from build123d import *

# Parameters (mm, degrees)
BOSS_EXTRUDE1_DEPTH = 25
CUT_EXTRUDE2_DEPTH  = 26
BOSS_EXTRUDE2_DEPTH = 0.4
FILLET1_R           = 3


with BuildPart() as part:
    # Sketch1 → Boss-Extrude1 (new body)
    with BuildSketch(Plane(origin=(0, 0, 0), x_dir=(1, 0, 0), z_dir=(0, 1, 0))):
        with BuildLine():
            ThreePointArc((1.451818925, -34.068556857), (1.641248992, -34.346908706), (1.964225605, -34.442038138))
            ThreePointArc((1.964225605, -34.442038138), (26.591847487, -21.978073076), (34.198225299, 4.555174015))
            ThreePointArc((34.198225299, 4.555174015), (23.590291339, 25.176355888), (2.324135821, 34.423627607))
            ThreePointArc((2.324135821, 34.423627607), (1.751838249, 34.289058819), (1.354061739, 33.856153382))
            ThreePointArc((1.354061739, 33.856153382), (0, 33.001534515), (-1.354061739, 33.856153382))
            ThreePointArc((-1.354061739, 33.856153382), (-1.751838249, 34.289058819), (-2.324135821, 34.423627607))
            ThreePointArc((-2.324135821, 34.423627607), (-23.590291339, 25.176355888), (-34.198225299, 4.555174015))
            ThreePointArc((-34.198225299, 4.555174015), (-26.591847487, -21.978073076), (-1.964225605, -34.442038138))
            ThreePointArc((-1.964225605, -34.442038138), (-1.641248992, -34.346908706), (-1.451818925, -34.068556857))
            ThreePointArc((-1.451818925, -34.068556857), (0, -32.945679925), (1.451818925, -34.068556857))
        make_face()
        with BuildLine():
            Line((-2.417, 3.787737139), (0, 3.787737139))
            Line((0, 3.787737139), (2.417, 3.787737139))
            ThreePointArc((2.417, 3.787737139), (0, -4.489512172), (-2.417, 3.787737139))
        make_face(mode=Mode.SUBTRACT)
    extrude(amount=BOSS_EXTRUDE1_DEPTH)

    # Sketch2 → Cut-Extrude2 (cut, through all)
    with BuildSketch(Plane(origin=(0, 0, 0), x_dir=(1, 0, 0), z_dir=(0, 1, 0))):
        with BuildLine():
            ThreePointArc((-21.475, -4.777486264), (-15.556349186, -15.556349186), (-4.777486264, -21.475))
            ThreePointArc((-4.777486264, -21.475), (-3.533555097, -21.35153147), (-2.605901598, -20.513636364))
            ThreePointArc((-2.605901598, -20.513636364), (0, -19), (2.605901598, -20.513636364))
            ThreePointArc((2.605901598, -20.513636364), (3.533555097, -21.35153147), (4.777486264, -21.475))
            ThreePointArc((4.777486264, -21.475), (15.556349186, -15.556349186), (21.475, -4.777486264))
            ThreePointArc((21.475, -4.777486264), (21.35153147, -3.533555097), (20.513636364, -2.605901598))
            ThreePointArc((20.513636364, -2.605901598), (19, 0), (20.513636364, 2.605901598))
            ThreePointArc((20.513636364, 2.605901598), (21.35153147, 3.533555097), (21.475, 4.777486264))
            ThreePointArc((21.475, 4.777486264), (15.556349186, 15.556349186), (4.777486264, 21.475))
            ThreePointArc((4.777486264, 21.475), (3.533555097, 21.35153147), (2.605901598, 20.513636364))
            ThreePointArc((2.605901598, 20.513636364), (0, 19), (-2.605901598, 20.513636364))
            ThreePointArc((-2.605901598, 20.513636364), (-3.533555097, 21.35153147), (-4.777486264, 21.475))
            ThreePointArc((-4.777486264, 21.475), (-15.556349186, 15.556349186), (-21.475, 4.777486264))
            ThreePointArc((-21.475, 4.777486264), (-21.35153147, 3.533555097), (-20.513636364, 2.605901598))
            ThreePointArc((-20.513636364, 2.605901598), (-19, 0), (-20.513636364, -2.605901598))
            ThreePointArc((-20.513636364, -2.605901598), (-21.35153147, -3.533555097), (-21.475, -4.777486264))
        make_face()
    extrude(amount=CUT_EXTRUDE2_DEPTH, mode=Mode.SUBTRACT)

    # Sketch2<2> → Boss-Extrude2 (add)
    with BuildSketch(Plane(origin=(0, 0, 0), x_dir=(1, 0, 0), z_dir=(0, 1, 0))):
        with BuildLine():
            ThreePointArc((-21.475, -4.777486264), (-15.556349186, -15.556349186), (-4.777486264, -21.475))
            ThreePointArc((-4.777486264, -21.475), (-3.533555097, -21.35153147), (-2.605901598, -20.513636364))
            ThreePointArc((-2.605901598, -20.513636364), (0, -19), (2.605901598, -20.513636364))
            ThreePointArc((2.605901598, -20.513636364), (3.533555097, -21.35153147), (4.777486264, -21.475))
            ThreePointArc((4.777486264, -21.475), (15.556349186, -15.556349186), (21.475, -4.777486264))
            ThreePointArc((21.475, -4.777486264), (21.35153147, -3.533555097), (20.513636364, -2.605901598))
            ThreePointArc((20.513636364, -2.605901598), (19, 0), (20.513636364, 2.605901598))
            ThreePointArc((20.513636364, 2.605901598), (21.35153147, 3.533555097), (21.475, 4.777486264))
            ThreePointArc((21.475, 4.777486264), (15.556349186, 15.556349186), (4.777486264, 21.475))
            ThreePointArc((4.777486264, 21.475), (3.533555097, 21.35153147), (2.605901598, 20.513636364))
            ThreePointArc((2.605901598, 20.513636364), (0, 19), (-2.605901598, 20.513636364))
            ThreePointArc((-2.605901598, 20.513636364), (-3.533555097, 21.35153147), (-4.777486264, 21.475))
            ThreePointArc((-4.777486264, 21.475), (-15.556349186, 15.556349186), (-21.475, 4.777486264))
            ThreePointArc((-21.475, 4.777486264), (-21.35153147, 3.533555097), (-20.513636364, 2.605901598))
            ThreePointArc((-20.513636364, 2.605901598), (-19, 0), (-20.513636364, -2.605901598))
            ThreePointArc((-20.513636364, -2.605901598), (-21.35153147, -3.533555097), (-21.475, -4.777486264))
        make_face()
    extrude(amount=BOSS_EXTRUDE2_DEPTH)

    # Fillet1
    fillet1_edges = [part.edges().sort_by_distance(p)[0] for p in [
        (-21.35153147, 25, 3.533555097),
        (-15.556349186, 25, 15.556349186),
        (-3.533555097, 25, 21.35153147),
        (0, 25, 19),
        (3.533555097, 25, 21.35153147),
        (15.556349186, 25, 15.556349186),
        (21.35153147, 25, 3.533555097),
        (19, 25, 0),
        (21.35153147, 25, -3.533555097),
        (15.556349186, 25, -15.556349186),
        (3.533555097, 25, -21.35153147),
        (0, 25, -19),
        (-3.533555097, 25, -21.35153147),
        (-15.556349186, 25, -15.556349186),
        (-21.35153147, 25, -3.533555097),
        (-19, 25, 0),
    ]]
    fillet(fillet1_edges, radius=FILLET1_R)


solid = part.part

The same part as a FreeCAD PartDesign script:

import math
import FreeCAD as App
import Part
import Sketcher
from FreeCAD import Vector


def edges_at(feature, points):
    """Names of the edges that pass closest to the given points."""
    edges = feature.Shape.Edges
    near = lambda p: min(range(len(edges)), key=lambda i: edges[i].distToShape(Part.Vertex(*p))[0])
    return sorted({f"Edge{near(p) + 1}" for p in points})

doc = App.newDocument("Part")
body = doc.addObject("PartDesign::Body", "Body")

sketch1 = body.newObject("Sketcher::SketchObject", "Sketch")
sketch1.AttachmentSupport = (doc.getObject("XZ_Plane"), [""])
sketch1.MapMode = "FlatFace"
sketch1.addGeometry(Part.ArcOfCircle(Part.Circle(Vector(1.9, 33.9, 0), Vector(0, 0, 1), 0.5), math.radians(87), math.radians(165)), False)
sketch1.addGeometry(Part.ArcOfCircle(Part.Circle(Vector(0, 0, 0), Vector(0, 0, 1), 34.5), math.radians(-8), math.radians(87)), False)
sketch1.addGeometry(Part.ArcOfCircle(Part.Circle(Vector(0, 0, 0), Vector(0, 0, 1), 34.5), math.radians(-86), math.radians(-8)), False)
sketch1.addGeometry(Part.ArcOfCircle(Part.Circle(Vector(2.3, -33.4, 0), Vector(0, 0, 1), 1), math.radians(-155), math.radians(-86)), False)
sketch1.addGeometry(Part.ArcOfCircle(Part.Circle(Vector(0, -34.5, 0), Vector(0, 0, 1), 1.5), math.radians(25), math.radians(155)), False)
sketch1.addGeometry(Part.ArcOfCircle(Part.Circle(Vector(-2.3, -33.4, 0), Vector(0, 0, 1), 1), math.radians(-94), math.radians(-25)), False)
sketch1.addGeometry(Part.ArcOfCircle(Part.Circle(Vector(0, 0, 0), Vector(0, 0, 1), 34.5), math.radians(-172), math.radians(-94)), False)
sketch1.addGeometry(Part.ArcOfCircle(Part.Circle(Vector(0, 0, 0), Vector(0, 0, 1), 34.5), math.radians(93), math.radians(188)), False)
sketch1.addGeometry(Part.ArcOfCircle(Part.Circle(Vector(-1.9, 33.9, 0), Vector(0, 0, 1), 0.5), math.radians(15), math.radians(93)), False)
sketch1.addGeometry(Part.ArcOfCircle(Part.Circle(Vector(0, 34.4, 0), Vector(0, 0, 1), 1.5), math.radians(-165), math.radians(-15)), False)
sketch1.addGeometry(Part.ArcOfCircle(Part.Circle(Vector(0, 0, 0), Vector(0, 0, 1), 4.5), math.radians(-57), math.radians(237)), False)
sketch1.addGeometry(Part.LineSegment(Vector(-2.4, -3.8, 0), Vector(2.4, -3.8, 0)), False)
sketch1.addConstraint(Sketcher.Constraint("Tangent", 0, 1, 1, 2))
sketch1.addConstraint(Sketcher.Constraint("Tangent", 1, 1, 2, 2))
sketch1.addConstraint(Sketcher.Constraint("Tangent", 2, 1, 3, 2))
sketch1.addConstraint(Sketcher.Constraint("Tangent", 3, 1, 4, 1))
sketch1.addConstraint(Sketcher.Constraint("Tangent", 4, 2, 5, 2))
sketch1.addConstraint(Sketcher.Constraint("Tangent", 5, 1, 6, 2))
sketch1.addConstraint(Sketcher.Constraint("Tangent", 6, 1, 7, 2))
sketch1.addConstraint(Sketcher.Constraint("Tangent", 7, 1, 8, 2))
sketch1.addConstraint(Sketcher.Constraint("Tangent", 8, 1, 9, 1))
sketch1.addConstraint(Sketcher.Constraint("Tangent", 9, 2, 0, 2))
sketch1.addConstraint(Sketcher.Constraint("Coincident", 10, 1, 11, 2))
sketch1.addConstraint(Sketcher.Constraint("Coincident", 11, 1, 10, 2))
sketch1.addConstraint(Sketcher.Constraint("Horizontal", 11))
sketch1.addConstraint(Sketcher.Constraint("Coincident", 6, 3, 1, 3))
sketch1.addConstraint(Sketcher.Constraint("Coincident", 10, 3, 1, 3))
sketch1.addConstraint(Sketcher.Constraint("Equal", 1, 2))
sketch1.addConstraint(Sketcher.Constraint("Equal", 3, 5))
sketch1.addConstraint(Sketcher.Constraint("Equal", 2, 6))
sketch1.addConstraint(Sketcher.Constraint("Equal", 6, 7))
sketch1.addConstraint(Sketcher.Constraint("Equal", 0, 8))
sketch1.addConstraint(Sketcher.Constraint("Equal", 4, 9))
sketch1.addConstraint(Sketcher.Constraint("Symmetric", 3, 3, 5, 3, -2))
sketch1.addConstraint(Sketcher.Constraint("PointOnObject", 9, 3, -2))
sketch1.addConstraint(Sketcher.Constraint("Horizontal", 1, 1, 6, 1))
sketch1.addConstraint(Sketcher.Constraint("Radius", 3, 1.0))
sketch1.addConstraint(Sketcher.Constraint("Radius", 0, 0.5))
sketch1.addConstraint(Sketcher.Constraint("Radius", 1, 34.5))
sketch1.addConstraint(Sketcher.Constraint("Radius", 4, 1.5))
sketch1.addConstraint(Sketcher.Constraint("DistanceX", 11, 1, 11, 2, 4.834))
sketch1.addConstraint(Sketcher.Constraint("DistanceY", 1, 3, -1, 1, 0.002001))
sketch1.addConstraint(Sketcher.Constraint("Radius", 10, 4.491513))
sketch1.addConstraint(Sketcher.Constraint("DistanceY", 3, 3, -1, 1, 33.425899))
sketch1.addConstraint(Sketcher.Constraint("DistanceX", -1, 1, 0, 3, 1.935759))
sketch1.addConstraint(Sketcher.Constraint("DistanceX", -1, 1, 1, 1, 34.198225))
pad1 = body.newObject("PartDesign::Pad", "Pad")
pad1.Profile = sketch1
pad1.Length = 25
pad1.Reversed = True

sketch2 = body.newObject("Sketcher::SketchObject", "Sketch001")
sketch2.AttachmentSupport = (doc.getObject("XZ_Plane"), [""])
sketch2.MapMode = "FlatFace"
sketch2.addGeometry(Part.ArcOfCircle(Part.Circle(Vector(0, 0, 0), Vector(0, 0, 1), 22), math.radians(103), math.radians(167)), False)
sketch2.addGeometry(Part.ArcOfCircle(Part.Circle(Vector(-4.3, 19.5, 0), Vector(0, 0, 1), 2), math.radians(30), math.radians(103)), False)
sketch2.addGeometry(Part.ArcOfCircle(Part.Circle(Vector(0, 22, 0), Vector(0, 0, 1), 3), math.radians(-150), math.radians(-30)), False)
sketch2.addGeometry(Part.ArcOfCircle(Part.Circle(Vector(4.3, 19.5, 0), Vector(0, 0, 1), 2), math.radians(77), math.radians(150)), False)
sketch2.addGeometry(Part.ArcOfCircle(Part.Circle(Vector(0, 0, 0), Vector(0, 0, 1), 22), math.radians(13), math.radians(77)), False)
sketch2.addGeometry(Part.ArcOfCircle(Part.Circle(Vector(19.5, 4.3, 0), Vector(0, 0, 1), 2), math.radians(-60), math.radians(13)), False)
sketch2.addGeometry(Part.ArcOfCircle(Part.Circle(Vector(22, 0, 0), Vector(0, 0, 1), 3), math.radians(120), math.radians(240)), False)
sketch2.addGeometry(Part.ArcOfCircle(Part.Circle(Vector(19.5, -4.3, 0), Vector(0, 0, 1), 2), math.radians(-13), math.radians(60)), False)
sketch2.addGeometry(Part.ArcOfCircle(Part.Circle(Vector(0, 0, 0), Vector(0, 0, 1), 22), math.radians(-77), math.radians(-13)), False)
sketch2.addGeometry(Part.ArcOfCircle(Part.Circle(Vector(4.3, -19.5, 0), Vector(0, 0, 1), 2), math.radians(-150), math.radians(-77)), False)
sketch2.addGeometry(Part.ArcOfCircle(Part.Circle(Vector(0, -22, 0), Vector(0, 0, 1), 3), math.radians(30), math.radians(150)), False)
sketch2.addGeometry(Part.ArcOfCircle(Part.Circle(Vector(-4.3, -19.5, 0), Vector(0, 0, 1), 2), math.radians(-103), math.radians(-30)), False)
sketch2.addGeometry(Part.ArcOfCircle(Part.Circle(Vector(0, 0, 0), Vector(0, 0, 1), 22), math.radians(-167), math.radians(-103)), False)
sketch2.addGeometry(Part.ArcOfCircle(Part.Circle(Vector(-19.5, -4.3, 0), Vector(0, 0, 1), 2), math.radians(120), math.radians(193)), False)
sketch2.addGeometry(Part.ArcOfCircle(Part.Circle(Vector(-22, 0, 0), Vector(0, 0, 1), 3), math.radians(-60), math.radians(60)), False)
sketch2.addGeometry(Part.ArcOfCircle(Part.Circle(Vector(-19.5, 4.3, 0), Vector(0, 0, 1), 2), math.radians(167), math.radians(240)), False)
sketch2.addConstraint(Sketcher.Constraint("Tangent", 0, 1, 1, 2))
sketch2.addConstraint(Sketcher.Constraint("Tangent", 1, 1, 2, 1))
sketch2.addConstraint(Sketcher.Constraint("Tangent", 2, 2, 3, 2))
sketch2.addConstraint(Sketcher.Constraint("Tangent", 3, 1, 4, 2))
sketch2.addConstraint(Sketcher.Constraint("Tangent", 4, 1, 5, 2))
sketch2.addConstraint(Sketcher.Constraint("Tangent", 5, 1, 6, 1))
sketch2.addConstraint(Sketcher.Constraint("Tangent", 6, 2, 7, 2))
sketch2.addConstraint(Sketcher.Constraint("Tangent", 7, 1, 8, 2))
sketch2.addConstraint(Sketcher.Constraint("Tangent", 8, 1, 9, 2))
sketch2.addConstraint(Sketcher.Constraint("Tangent", 9, 1, 10, 1))
sketch2.addConstraint(Sketcher.Constraint("Tangent", 10, 2, 11, 2))
sketch2.addConstraint(Sketcher.Constraint("Tangent", 11, 1, 12, 2))
sketch2.addConstraint(Sketcher.Constraint("Tangent", 12, 1, 13, 2))
sketch2.addConstraint(Sketcher.Constraint("Tangent", 13, 1, 14, 1))
sketch2.addConstraint(Sketcher.Constraint("Tangent", 14, 2, 15, 2))
sketch2.addConstraint(Sketcher.Constraint("Tangent", 15, 1, 0, 2))
sketch2.addConstraint(Sketcher.Constraint("Coincident", 0, 3, -1, 1))
sketch2.addConstraint(Sketcher.Constraint("Coincident", 4, 3, -1, 1))
sketch2.addConstraint(Sketcher.Constraint("Coincident", 8, 3, -1, 1))
sketch2.addConstraint(Sketcher.Constraint("Coincident", 12, 3, -1, 1))
sketch2.addConstraint(Sketcher.Constraint("Equal", 1, 3))
sketch2.addConstraint(Sketcher.Constraint("Equal", 0, 4))
sketch2.addConstraint(Sketcher.Constraint("Equal", 3, 5))
sketch2.addConstraint(Sketcher.Constraint("Equal", 2, 6))
sketch2.addConstraint(Sketcher.Constraint("Equal", 5, 7))
sketch2.addConstraint(Sketcher.Constraint("Equal", 4, 8))
sketch2.addConstraint(Sketcher.Constraint("Equal", 7, 9))
sketch2.addConstraint(Sketcher.Constraint("Equal", 6, 10))
sketch2.addConstraint(Sketcher.Constraint("Equal", 9, 11))
sketch2.addConstraint(Sketcher.Constraint("Equal", 8, 12))
sketch2.addConstraint(Sketcher.Constraint("Equal", 11, 13))
sketch2.addConstraint(Sketcher.Constraint("Equal", 10, 14))
sketch2.addConstraint(Sketcher.Constraint("Equal", 13, 15))
sketch2.addConstraint(Sketcher.Constraint("Symmetric", 2, 3, 10, 3, -1, 1))
sketch2.addConstraint(Sketcher.Constraint("Symmetric", 6, 3, 14, 3, -1, 1))
sketch2.addConstraint(Sketcher.Constraint("PointOnObject", 2, 3, -2))
sketch2.addConstraint(Sketcher.Constraint("PointOnObject", 6, 3, -1))
sketch2.addConstraint(Sketcher.Constraint("Radius", 0, 22.0))
sketch2.addConstraint(Sketcher.Constraint("Radius", 1, 2.0))
sketch2.addConstraint(Sketcher.Constraint("Radius", 2, 3.0))
sketch2.addConstraint(Sketcher.Constraint("DistanceY", -1, 1, 2, 3, 22.0))
sketch2.addConstraint(Sketcher.Constraint("DistanceX", -1, 1, 6, 3, 22.0))
pocket1 = body.newObject("PartDesign::Pocket", "Pocket")
pocket1.Profile = sketch2
pocket1.Type = "ThroughAll"

sketch3 = body.newObject("Sketcher::SketchObject", "Sketch002")
sketch3.AttachmentSupport = (doc.getObject("XZ_Plane"), [""])
sketch3.MapMode = "FlatFace"
sketch3.addGeometry(Part.ArcOfCircle(Part.Circle(Vector(0, 0, 0), Vector(0, 0, 1), 22), math.radians(103), math.radians(167)), False)
sketch3.addGeometry(Part.ArcOfCircle(Part.Circle(Vector(-4.3, 19.5, 0), Vector(0, 0, 1), 2), math.radians(30), math.radians(103)), False)
sketch3.addGeometry(Part.ArcOfCircle(Part.Circle(Vector(0, 22, 0), Vector(0, 0, 1), 3), math.radians(-150), math.radians(-30)), False)
sketch3.addGeometry(Part.ArcOfCircle(Part.Circle(Vector(4.3, 19.5, 0), Vector(0, 0, 1), 2), math.radians(77), math.radians(150)), False)
sketch3.addGeometry(Part.ArcOfCircle(Part.Circle(Vector(0, 0, 0), Vector(0, 0, 1), 22), math.radians(13), math.radians(77)), False)
sketch3.addGeometry(Part.ArcOfCircle(Part.Circle(Vector(19.5, 4.3, 0), Vector(0, 0, 1), 2), math.radians(-60), math.radians(13)), False)
sketch3.addGeometry(Part.ArcOfCircle(Part.Circle(Vector(22, 0, 0), Vector(0, 0, 1), 3), math.radians(120), math.radians(240)), False)
sketch3.addGeometry(Part.ArcOfCircle(Part.Circle(Vector(19.5, -4.3, 0), Vector(0, 0, 1), 2), math.radians(-13), math.radians(60)), False)
sketch3.addGeometry(Part.ArcOfCircle(Part.Circle(Vector(0, 0, 0), Vector(0, 0, 1), 22), math.radians(-77), math.radians(-13)), False)
sketch3.addGeometry(Part.ArcOfCircle(Part.Circle(Vector(4.3, -19.5, 0), Vector(0, 0, 1), 2), math.radians(-150), math.radians(-77)), False)
sketch3.addGeometry(Part.ArcOfCircle(Part.Circle(Vector(0, -22, 0), Vector(0, 0, 1), 3), math.radians(30), math.radians(150)), False)
sketch3.addGeometry(Part.ArcOfCircle(Part.Circle(Vector(-4.3, -19.5, 0), Vector(0, 0, 1), 2), math.radians(-103), math.radians(-30)), False)
sketch3.addGeometry(Part.ArcOfCircle(Part.Circle(Vector(0, 0, 0), Vector(0, 0, 1), 22), math.radians(-167), math.radians(-103)), False)
sketch3.addGeometry(Part.ArcOfCircle(Part.Circle(Vector(-19.5, -4.3, 0), Vector(0, 0, 1), 2), math.radians(120), math.radians(193)), False)
sketch3.addGeometry(Part.ArcOfCircle(Part.Circle(Vector(-22, 0, 0), Vector(0, 0, 1), 3), math.radians(-60), math.radians(60)), False)
sketch3.addGeometry(Part.ArcOfCircle(Part.Circle(Vector(-19.5, 4.3, 0), Vector(0, 0, 1), 2), math.radians(167), math.radians(240)), False)
sketch3.addConstraint(Sketcher.Constraint("Tangent", 0, 1, 1, 2))
sketch3.addConstraint(Sketcher.Constraint("Tangent", 1, 1, 2, 1))
sketch3.addConstraint(Sketcher.Constraint("Tangent", 2, 2, 3, 2))
sketch3.addConstraint(Sketcher.Constraint("Tangent", 3, 1, 4, 2))
sketch3.addConstraint(Sketcher.Constraint("Tangent", 4, 1, 5, 2))
sketch3.addConstraint(Sketcher.Constraint("Tangent", 5, 1, 6, 1))
sketch3.addConstraint(Sketcher.Constraint("Tangent", 6, 2, 7, 2))
sketch3.addConstraint(Sketcher.Constraint("Tangent", 7, 1, 8, 2))
sketch3.addConstraint(Sketcher.Constraint("Tangent", 8, 1, 9, 2))
sketch3.addConstraint(Sketcher.Constraint("Tangent", 9, 1, 10, 1))
sketch3.addConstraint(Sketcher.Constraint("Tangent", 10, 2, 11, 2))
sketch3.addConstraint(Sketcher.Constraint("Tangent", 11, 1, 12, 2))
sketch3.addConstraint(Sketcher.Constraint("Tangent", 12, 1, 13, 2))
sketch3.addConstraint(Sketcher.Constraint("Tangent", 13, 1, 14, 1))
sketch3.addConstraint(Sketcher.Constraint("Tangent", 14, 2, 15, 2))
sketch3.addConstraint(Sketcher.Constraint("Tangent", 15, 1, 0, 2))
sketch3.addConstraint(Sketcher.Constraint("Coincident", 0, 3, -1, 1))
sketch3.addConstraint(Sketcher.Constraint("Coincident", 4, 3, -1, 1))
sketch3.addConstraint(Sketcher.Constraint("Coincident", 8, 3, -1, 1))
sketch3.addConstraint(Sketcher.Constraint("Coincident", 12, 3, -1, 1))
sketch3.addConstraint(Sketcher.Constraint("Equal", 1, 3))
sketch3.addConstraint(Sketcher.Constraint("Equal", 0, 4))
sketch3.addConstraint(Sketcher.Constraint("Equal", 3, 5))
sketch3.addConstraint(Sketcher.Constraint("Equal", 2, 6))
sketch3.addConstraint(Sketcher.Constraint("Equal", 5, 7))
sketch3.addConstraint(Sketcher.Constraint("Equal", 4, 8))
sketch3.addConstraint(Sketcher.Constraint("Equal", 7, 9))
sketch3.addConstraint(Sketcher.Constraint("Equal", 6, 10))
sketch3.addConstraint(Sketcher.Constraint("Equal", 9, 11))
sketch3.addConstraint(Sketcher.Constraint("Equal", 8, 12))
sketch3.addConstraint(Sketcher.Constraint("Equal", 11, 13))
sketch3.addConstraint(Sketcher.Constraint("Equal", 10, 14))
sketch3.addConstraint(Sketcher.Constraint("Equal", 13, 15))
sketch3.addConstraint(Sketcher.Constraint("Symmetric", 2, 3, 10, 3, -1, 1))
sketch3.addConstraint(Sketcher.Constraint("Symmetric", 6, 3, 14, 3, -1, 1))
sketch3.addConstraint(Sketcher.Constraint("PointOnObject", 2, 3, -2))
sketch3.addConstraint(Sketcher.Constraint("PointOnObject", 6, 3, -1))
sketch3.addConstraint(Sketcher.Constraint("Radius", 0, 22.0))
sketch3.addConstraint(Sketcher.Constraint("Radius", 1, 2.0))
sketch3.addConstraint(Sketcher.Constraint("Radius", 2, 3.0))
sketch3.addConstraint(Sketcher.Constraint("DistanceY", -1, 1, 2, 3, 22.0))
sketch3.addConstraint(Sketcher.Constraint("DistanceX", -1, 1, 6, 3, 22.0))
pad2 = body.newObject("PartDesign::Pad", "Pad001")
pad2.Profile = sketch3
pad2.Length = 0.4
pad2.Reversed = True
doc.recompute()

fillet = body.newObject("PartDesign::Fillet", "Fillet")
fillet.Base = (pad2, edges_at(pad2, [
    (-21.352, 25, 3.534),
    (-15.556, 25, 15.556),
    (-3.534, 25, 21.352),
    (0, 25, 19),
    (3.534, 25, 21.352),
    (15.556, 25, 15.556),
    (21.352, 25, 3.534),
    (19, 25, 0),
    (21.352, 25, -3.534),
    (15.556, 25, -15.556),
    (3.534, 25, -21.352),
    (0, 25, -19),
    (-3.534, 25, -21.352),
    (-15.556, 25, -15.556),
    (-21.352, 25, -3.534),
    (-19, 25, 0),
]))
fillet.Radius = 3

doc.recompute()
